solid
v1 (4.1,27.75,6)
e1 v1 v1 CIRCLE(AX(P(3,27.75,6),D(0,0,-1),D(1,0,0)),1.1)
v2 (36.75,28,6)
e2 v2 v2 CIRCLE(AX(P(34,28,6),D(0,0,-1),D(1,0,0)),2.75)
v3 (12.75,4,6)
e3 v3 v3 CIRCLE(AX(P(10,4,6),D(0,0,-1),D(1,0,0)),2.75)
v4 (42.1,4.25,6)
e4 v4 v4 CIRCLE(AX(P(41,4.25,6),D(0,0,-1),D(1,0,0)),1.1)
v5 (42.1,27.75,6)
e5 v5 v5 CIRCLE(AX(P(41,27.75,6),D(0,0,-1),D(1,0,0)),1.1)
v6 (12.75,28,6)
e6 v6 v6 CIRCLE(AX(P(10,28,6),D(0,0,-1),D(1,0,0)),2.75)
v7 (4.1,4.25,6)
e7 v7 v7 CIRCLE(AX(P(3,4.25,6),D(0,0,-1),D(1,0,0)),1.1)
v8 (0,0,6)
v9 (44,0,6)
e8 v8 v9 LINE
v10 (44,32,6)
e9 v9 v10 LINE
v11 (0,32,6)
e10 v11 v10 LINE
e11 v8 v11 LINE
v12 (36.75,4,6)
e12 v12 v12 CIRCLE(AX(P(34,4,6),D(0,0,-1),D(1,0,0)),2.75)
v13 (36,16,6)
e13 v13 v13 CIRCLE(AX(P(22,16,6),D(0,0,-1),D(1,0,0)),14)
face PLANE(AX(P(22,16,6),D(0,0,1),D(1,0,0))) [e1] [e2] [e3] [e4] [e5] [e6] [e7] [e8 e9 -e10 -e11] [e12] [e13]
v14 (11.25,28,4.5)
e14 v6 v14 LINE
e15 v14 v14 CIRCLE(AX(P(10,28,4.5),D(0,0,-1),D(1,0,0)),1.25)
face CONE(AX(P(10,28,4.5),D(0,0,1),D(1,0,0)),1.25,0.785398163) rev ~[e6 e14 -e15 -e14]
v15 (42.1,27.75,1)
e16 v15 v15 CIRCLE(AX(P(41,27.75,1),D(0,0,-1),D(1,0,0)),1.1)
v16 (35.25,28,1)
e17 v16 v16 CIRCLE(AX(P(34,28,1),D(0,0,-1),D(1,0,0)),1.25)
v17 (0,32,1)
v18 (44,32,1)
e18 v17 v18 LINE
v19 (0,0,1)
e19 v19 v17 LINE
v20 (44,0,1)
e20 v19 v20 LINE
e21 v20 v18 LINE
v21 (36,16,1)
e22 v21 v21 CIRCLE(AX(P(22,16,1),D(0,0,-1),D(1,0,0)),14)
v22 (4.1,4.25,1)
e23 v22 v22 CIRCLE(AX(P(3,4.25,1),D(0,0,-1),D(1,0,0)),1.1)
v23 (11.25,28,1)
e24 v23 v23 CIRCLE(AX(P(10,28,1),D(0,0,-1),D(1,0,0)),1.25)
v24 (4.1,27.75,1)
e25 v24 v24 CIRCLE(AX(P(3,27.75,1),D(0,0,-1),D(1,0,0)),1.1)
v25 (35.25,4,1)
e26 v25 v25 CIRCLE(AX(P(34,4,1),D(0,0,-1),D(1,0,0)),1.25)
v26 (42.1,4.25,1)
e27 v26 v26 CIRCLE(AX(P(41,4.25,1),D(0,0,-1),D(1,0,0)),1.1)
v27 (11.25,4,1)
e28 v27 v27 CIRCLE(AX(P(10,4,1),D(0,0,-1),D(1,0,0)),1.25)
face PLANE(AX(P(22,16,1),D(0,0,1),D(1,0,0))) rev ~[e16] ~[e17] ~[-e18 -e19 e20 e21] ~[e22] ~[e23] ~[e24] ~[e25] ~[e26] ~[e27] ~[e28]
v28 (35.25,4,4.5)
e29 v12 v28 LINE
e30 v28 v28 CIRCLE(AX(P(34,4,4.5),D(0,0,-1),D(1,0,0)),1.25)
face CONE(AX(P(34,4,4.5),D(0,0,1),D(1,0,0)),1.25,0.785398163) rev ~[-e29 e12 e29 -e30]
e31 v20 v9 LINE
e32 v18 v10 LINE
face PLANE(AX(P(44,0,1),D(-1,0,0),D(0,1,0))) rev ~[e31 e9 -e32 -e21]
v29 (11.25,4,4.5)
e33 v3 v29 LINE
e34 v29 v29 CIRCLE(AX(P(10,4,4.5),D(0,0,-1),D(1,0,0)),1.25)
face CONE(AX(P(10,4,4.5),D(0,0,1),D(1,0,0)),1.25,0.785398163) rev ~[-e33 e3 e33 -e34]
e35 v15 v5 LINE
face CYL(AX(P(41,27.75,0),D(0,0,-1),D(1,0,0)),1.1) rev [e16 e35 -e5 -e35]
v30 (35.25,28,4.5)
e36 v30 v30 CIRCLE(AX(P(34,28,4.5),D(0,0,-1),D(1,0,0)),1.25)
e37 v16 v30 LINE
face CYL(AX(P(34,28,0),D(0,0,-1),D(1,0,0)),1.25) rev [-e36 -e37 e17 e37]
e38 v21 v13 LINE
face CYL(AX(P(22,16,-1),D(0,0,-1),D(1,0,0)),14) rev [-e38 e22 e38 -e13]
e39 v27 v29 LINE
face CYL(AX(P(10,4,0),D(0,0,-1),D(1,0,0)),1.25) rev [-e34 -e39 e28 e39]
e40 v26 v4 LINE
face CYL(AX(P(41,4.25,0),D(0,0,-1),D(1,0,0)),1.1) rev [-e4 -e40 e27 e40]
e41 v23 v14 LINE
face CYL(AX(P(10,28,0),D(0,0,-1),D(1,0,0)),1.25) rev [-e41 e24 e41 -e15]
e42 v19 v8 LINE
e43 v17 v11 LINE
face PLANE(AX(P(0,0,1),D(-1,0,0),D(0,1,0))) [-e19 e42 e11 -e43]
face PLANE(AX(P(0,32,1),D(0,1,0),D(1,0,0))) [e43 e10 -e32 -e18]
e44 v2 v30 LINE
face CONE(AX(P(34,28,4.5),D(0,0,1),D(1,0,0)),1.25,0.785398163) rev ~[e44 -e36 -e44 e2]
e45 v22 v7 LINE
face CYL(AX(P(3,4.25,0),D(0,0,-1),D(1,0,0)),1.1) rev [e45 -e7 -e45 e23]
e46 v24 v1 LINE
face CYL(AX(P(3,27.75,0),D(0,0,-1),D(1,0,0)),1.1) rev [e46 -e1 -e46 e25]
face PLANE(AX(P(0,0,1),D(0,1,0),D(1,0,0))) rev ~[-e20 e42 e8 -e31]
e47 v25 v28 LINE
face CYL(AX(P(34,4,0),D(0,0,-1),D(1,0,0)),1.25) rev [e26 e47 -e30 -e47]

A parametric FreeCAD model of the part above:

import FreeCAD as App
import Part
import Sketcher
from FreeCAD import Vector
Q = App.Units.Quantity


def edges_at(feature, points):
    """Names of the edges that pass closest to the given points."""
    edges = feature.Shape.Edges
    near = lambda p: min(range(len(edges)), key=lambda i: edges[i].distToShape(Part.Vertex(*p))[0])
    return sorted({f"Edge{near(p) + 1}" for p in points})


def add_polygon(sketch, points):
    """Adds a closed chain of lines whose ends are joined by coincident constraints."""
    first, n = sketch.GeometryCount, len(points)
    for a, b in zip(points, points[1:] + points[:1]):
        sketch.addGeometry(Part.LineSegment(App.Vector(*a, 0), App.Vector(*b, 0)), False)
    for i in range(n):
        sketch.addConstraint(Sketcher.Constraint("Coincident", first + i, 2, first + (i + 1) % n, 1))

doc = App.newDocument("Part")
params = doc.addObject("Spreadsheet::Sheet", "Params")
for row, (alias, value) in enumerate([
    ("sketch1_diameter", "2.5 mm"),
    ("pad1_length", "10 mm"),
    ("sketch2_diameter", "2.5 mm"),
    ("pad2_length", "10 mm"),
    ("sketch3_diameter", "2.5 mm"),
    ("pad3_length", "10 mm"),
    ("sketch4_diameter", "2.5 mm"),
    ("pad4_length", "10 mm"),
    ("sketch5_diameter", "2.2 mm"),
    ("pad5_length", "10 mm"),
    ("sketch6_diameter", "2.2 mm"),
    ("pad6_length", "10 mm"),
    ("sketch7_diameter", "2.2 mm"),
    ("pad7_length", "10 mm"),
    ("sketch8_diameter", "2.2 mm"),
    ("pad8_length", "10 mm"),
    ("sketch9_diameter", "28 mm"),
    ("pad9_length", "10 mm"),
    ("sketch10_width", "44 mm"),
    ("sketch10_height", "32 mm"),
    ("pad10_length", "5 mm"),
    ("chamfer_size", "1.5 mm"),
    ("chamfer2_size", "1.5 mm"),
], start=1):
    params.set(f"A{row}", alias)
    params.set(f"B{row}", "=" + value)
    params.setAlias(f"B{row}", alias)

body = doc.addObject("PartDesign::Body", "Body")

# Sketch on XY plane
sketch1 = body.newObject("Sketcher::SketchObject", "Sketch")
sketch1.AttachmentSupport = (doc.getObject("XY_Plane"), [""])
sketch1.MapMode = "FlatFace"
sketch1.addGeometry(Part.Circle(Vector(10, 28, 0), Vector(0, 0, 1), 1.2), False)
sketch1.addConstraint([
    Sketcher.Constraint("Diameter", 0, Q("2.5 mm")),
    Sketcher.Constraint("DistanceX", -1, 1, 0, 3, Q("10 mm")),
    Sketcher.Constraint("DistanceY", -1, 1, 0, 3, Q("28 mm")),
])
sketch1.setExpression("Constraints[0]", "Params.sketch1_diameter")
pad1 = body.newObject("PartDesign::Pad", "Pad")
pad1.Profile = sketch1
pad1.setExpression("Length", "Params.pad1_length")
body2 = doc.addObject("PartDesign::Body", "Body001")

# Sketch on XY plane
sketch2 = body2.newObject("Sketcher::SketchObject", "Sketch001")
sketch2.AttachmentSupport = (doc.getObject("XY_Plane001"), [""])
sketch2.MapMode = "FlatFace"
sketch2.addGeometry(Part.Circle(Vector(34, 28, 0), Vector(0, 0, 1), 1.2), False)
sketch2.addConstraint([
    Sketcher.Constraint("Diameter", 0, Q("2.5 mm")),
    Sketcher.Constraint("DistanceX", -1, 1, 0, 3, Q("34 mm")),
    Sketcher.Constraint("DistanceY", -1, 1, 0, 3, Q("28 mm")),
])
sketch2.setExpression("Constraints[0]", "Params.sketch2_diameter")
pad2 = body2.newObject("PartDesign::Pad", "Pad001")
pad2.Profile = sketch2
pad2.setExpression("Length", "Params.pad2_length")
body3 = doc.addObject("PartDesign::Body", "Body002")

# Sketch on XY plane
sketch3 = body3.newObject("Sketcher::SketchObject", "Sketch002")
sketch3.AttachmentSupport = (doc.getObject("XY_Plane002"), [""])
sketch3.MapMode = "FlatFace"
sketch3.addGeometry(Part.Circle(Vector(34, 4, 0), Vector(0, 0, 1), 1.2), False)
sketch3.addConstraint([
    Sketcher.Constraint("Diameter", 0, Q("2.5 mm")),
    Sketcher.Constraint("DistanceX", -1, 1, 0, 3, Q("34 mm")),
    Sketcher.Constraint("DistanceY", -1, 1, 0, 3, Q("4 mm")),
])
sketch3.setExpression("Constraints[0]", "Params.sketch3_diameter")
pad3 = body3.newObject("PartDesign::Pad", "Pad002")
pad3.Profile = sketch3
pad3.setExpression("Length", "Params.pad3_length")
body4 = doc.addObject("PartDesign::Body", "Body003")
body4.AllowCompound = True

# Sketch on XY plane
sketch4 = body4.newObject("Sketcher::SketchObject", "Sketch003")
sketch4.AttachmentSupport = (doc.getObject("XY_Plane003"), [""])
sketch4.MapMode = "FlatFace"
sketch4.addGeometry(Part.Circle(Vector(10, 4, 0), Vector(0, 0, 1), 1.2), False)
sketch4.addConstraint([
    Sketcher.Constraint("Diameter", 0, Q("2.5 mm")),
    Sketcher.Constraint("DistanceX", -1, 1, 0, 3, Q("10 mm")),
    Sketcher.Constraint("DistanceY", -1, 1, 0, 3, Q("4 mm")),
])
sketch4.setExpression("Constraints[0]", "Params.sketch4_diameter")
pad4 = body4.newObject("PartDesign::Pad", "Pad003")
pad4.Profile = sketch4
pad4.setExpression("Length", "Params.pad4_length")
doc.recompute()

boolean = body4.newObject("PartDesign::Boolean", "Boolean")
boolean.Type = "Fuse"
boolean.addObjects([body])
doc.recompute()

boolean2 = body4.newObject("PartDesign::Boolean", "Boolean001")
boolean2.Type = "Fuse"
boolean2.addObjects([body2])
doc.recompute()

boolean3 = body4.newObject("PartDesign::Boolean", "Boolean002")
boolean3.Type = "Fuse"
boolean3.addObjects([body3])
body5 = doc.addObject("PartDesign::Body", "Body004")

# Sketch on XY plane
sketch5 = body5.newObject("Sketcher::SketchObject", "Sketch004")
sketch5.AttachmentSupport = (doc.getObject("XY_Plane004"), [""])
sketch5.MapMode = "FlatFace"
sketch5.addGeometry(Part.Circle(Vector(3, 27.8, 0), Vector(0, 0, 1), 1.1), False)
sketch5.addConstraint([
    Sketcher.Constraint("Diameter", 0, Q("2.2 mm")),
    Sketcher.Constraint("DistanceX", -1, 1, 0, 3, Q("3 mm")),
    Sketcher.Constraint("DistanceY", -1, 1, 0, 3, Q("27.75 mm")),
])
sketch5.setExpression("Constraints[0]", "Params.sketch5_diameter")
pad5 = body5.newObject("PartDesign::Pad", "Pad004")
pad5.Profile = sketch5
pad5.setExpression("Length", "Params.pad5_length")
body6 = doc.addObject("PartDesign::Body", "Body005")

# Sketch on XY plane
sketch6 = body6.newObject("Sketcher::SketchObject", "Sketch005")
sketch6.AttachmentSupport = (doc.getObject("XY_Plane005"), [""])
sketch6.MapMode = "FlatFace"
sketch6.addGeometry(Part.Circle(Vector(41, 4.2, 0), Vector(0, 0, 1), 1.1), False)
sketch6.addConstraint([
    Sketcher.Constraint("Diameter", 0, Q("2.2 mm")),
    Sketcher.Constraint("DistanceX", -1, 1, 0, 3, Q("41 mm")),
    Sketcher.Constraint("DistanceY", -1, 1, 0, 3, Q("4.25 mm")),
])
sketch6.setExpression("Constraints[0]", "Params.sketch6_diameter")
pad6 = body6.newObject("PartDesign::Pad", "Pad005")
pad6.Profile = sketch6
pad6.setExpression("Length", "Params.pad6_length")
body7 = doc.addObject("PartDesign::Body", "Body006")

# Sketch on XY plane
sketch7 = body7.newObject("Sketcher::SketchObject", "Sketch006")
sketch7.AttachmentSupport = (doc.getObject("XY_Plane006"), [""])
sketch7.MapMode = "FlatFace"
sketch7.addGeometry(Part.Circle(Vector(41, 27.8, 0), Vector(0, 0, 1), 1.1), False)
sketch7.addConstraint([
    Sketcher.Constraint("Diameter", 0, Q("2.2 mm")),
    Sketcher.Constraint("DistanceX", -1, 1, 0, 3, Q("41 mm")),
    Sketcher.Constraint("DistanceY", -1, 1, 0, 3, Q("27.75 mm")),
])
sketch7.setExpression("Constraints[0]", "Params.sketch7_diameter")
pad7 = body7.newObject("PartDesign::Pad", "Pad006")
pad7.Profile = sketch7
pad7.setExpression("Length", "Params.pad7_length")
body8 = doc.addObject("PartDesign::Body", "Body007")
body8.AllowCompound = True

# Sketch on XY plane
sketch8 = body8.newObject("Sketcher::SketchObject", "Sketch007")
sketch8.AttachmentSupport = (doc.getObject("XY_Plane007"), [""])
sketch8.MapMode = "FlatFace"
sketch8.addGeometry(Part.Circle(Vector(3, 4.2, 0), Vector(0, 0, 1), 1.1), False)
sketch8.addConstraint([
    Sketcher.Constraint("Diameter", 0, Q("2.2 mm")),
    Sketcher.Constraint("DistanceX", -1, 1, 0, 3, Q("3 mm")),
    Sketcher.Constraint("DistanceY", -1, 1, 0, 3, Q("4.25 mm")),
])
sketch8.setExpression("Constraints[0]", "Params.sketch8_diameter")
pad8 = body8.newObject("PartDesign::Pad", "Pad007")
pad8.Profile = sketch8
pad8.setExpression("Length", "Params.pad8_length")
doc.recompute()

boolean4 = body8.newObject("PartDesign::Boolean", "Boolean003")
boolean4.Type = "Fuse"
boolean4.addObjects([body5])
doc.recompute()

boolean5 = body8.newObject("PartDesign::Boolean", "Boolean004")
boolean5.Type = "Fuse"
boolean5.addObjects([body6])
doc.recompute()

boolean6 = body8.newObject("PartDesign::Boolean", "Boolean005")
boolean6.Type = "Fuse"
boolean6.addObjects([body7])
body9 = doc.addObject("PartDesign::Body", "Body008")

# Sketch on XY plane
sketch9 = body9.newObject("Sketcher::SketchObject", "Sketch008")
sketch9.AttachmentSupport = (doc.getObject("XY_Plane008"), [""])
sketch9.MapMode = "FlatFace"
sketch9.AttachmentOffset = App.Placement(Vector(0, 0, -1), App.Rotation())
sketch9.addGeometry(Part.Circle(Vector(22, 16, 0), Vector(0, 0, 1), 14), False)
sketch9.addConstraint([
    Sketcher.Constraint("Diameter", 0, Q("28 mm")),
    Sketcher.Constraint("DistanceX", -1, 1, 0, 3, Q("22 mm")),
    Sketcher.Constraint("DistanceY", -1, 1, 0, 3, Q("16 mm")),
])
sketch9.setExpression("Constraints[0]", "Params.sketch9_diameter")
pad9 = body9.newObject("PartDesign::Pad", "Pad008")
pad9.Profile = sketch9
pad9.setExpression("Length", "Params.pad9_length")
body10 = doc.addObject("PartDesign::Body", "Body009")

# Sketch on XY plane
sketch10 = body10.newObject("Sketcher::SketchObject", "Sketch009")
sketch10.AttachmentSupport = (doc.getObject("XY_Plane009"), [""])
sketch10.MapMode = "FlatFace"
sketch10.AttachmentOffset = App.Placement(Vector(0, 0, 1), App.Rotation())
add_polygon(sketch10, [(0, 32), (0, 0), (44, 0), (44, 32)])  # lines 0-3
sketch10.addConstraint([
    Sketcher.Constraint("Vertical", 0),
    Sketcher.Constraint("Horizontal", 1),
    Sketcher.Constraint("Vertical", 2),
    Sketcher.Constraint("Horizontal", 3),
    Sketcher.Constraint("Coincident", 0, 2, -1, 1),
    Sketcher.Constraint("DistanceX", 1, 1, 1, 2, Q("44 mm")),
    Sketcher.Constraint("DistanceY", 0, 2, 0, 1, Q("32 mm")),
])
sketch10.setExpression("Constraints[9]", "Params.sketch10_width")
sketch10.setExpression("Constraints[10]", "Params.sketch10_height")
pad10 = body10.newObject("PartDesign::Pad", "Pad009")
pad10.Profile = sketch10
pad10.setExpression("Length", "Params.pad10_length")
doc.recompute()

boolean7 = body10.newObject("PartDesign::Boolean", "Boolean006")
boolean7.Type = "Cut"
boolean7.addObjects([body9])
doc.recompute()

boolean8 = body10.newObject("PartDesign::Boolean", "Boolean007")
boolean8.Type = "Cut"
boolean8.addObjects([body8])
doc.recompute()

boolean9 = body10.newObject("PartDesign::Boolean", "Boolean008")
boolean9.Type = "Cut"
boolean9.addObjects([body4])
doc.recompute()

chamfer = body10.newObject("PartDesign::Chamfer", "Chamfer")
chamfer.Base = (boolean9, edges_at(boolean9, [(8.75, 28, 6)]))
chamfer.setExpression("Size", "Params.chamfer_size")
doc.recompute()

chamfer2 = body10.newObject("PartDesign::Chamfer", "Chamfer001")
chamfer2.Base = (chamfer, edges_at(chamfer, [(32.75, 4, 6), (32.75, 28, 6), (8.75, 4, 6)]))
chamfer2.setExpression("Size", "Params.chamfer2_size")

doc.recompute()
